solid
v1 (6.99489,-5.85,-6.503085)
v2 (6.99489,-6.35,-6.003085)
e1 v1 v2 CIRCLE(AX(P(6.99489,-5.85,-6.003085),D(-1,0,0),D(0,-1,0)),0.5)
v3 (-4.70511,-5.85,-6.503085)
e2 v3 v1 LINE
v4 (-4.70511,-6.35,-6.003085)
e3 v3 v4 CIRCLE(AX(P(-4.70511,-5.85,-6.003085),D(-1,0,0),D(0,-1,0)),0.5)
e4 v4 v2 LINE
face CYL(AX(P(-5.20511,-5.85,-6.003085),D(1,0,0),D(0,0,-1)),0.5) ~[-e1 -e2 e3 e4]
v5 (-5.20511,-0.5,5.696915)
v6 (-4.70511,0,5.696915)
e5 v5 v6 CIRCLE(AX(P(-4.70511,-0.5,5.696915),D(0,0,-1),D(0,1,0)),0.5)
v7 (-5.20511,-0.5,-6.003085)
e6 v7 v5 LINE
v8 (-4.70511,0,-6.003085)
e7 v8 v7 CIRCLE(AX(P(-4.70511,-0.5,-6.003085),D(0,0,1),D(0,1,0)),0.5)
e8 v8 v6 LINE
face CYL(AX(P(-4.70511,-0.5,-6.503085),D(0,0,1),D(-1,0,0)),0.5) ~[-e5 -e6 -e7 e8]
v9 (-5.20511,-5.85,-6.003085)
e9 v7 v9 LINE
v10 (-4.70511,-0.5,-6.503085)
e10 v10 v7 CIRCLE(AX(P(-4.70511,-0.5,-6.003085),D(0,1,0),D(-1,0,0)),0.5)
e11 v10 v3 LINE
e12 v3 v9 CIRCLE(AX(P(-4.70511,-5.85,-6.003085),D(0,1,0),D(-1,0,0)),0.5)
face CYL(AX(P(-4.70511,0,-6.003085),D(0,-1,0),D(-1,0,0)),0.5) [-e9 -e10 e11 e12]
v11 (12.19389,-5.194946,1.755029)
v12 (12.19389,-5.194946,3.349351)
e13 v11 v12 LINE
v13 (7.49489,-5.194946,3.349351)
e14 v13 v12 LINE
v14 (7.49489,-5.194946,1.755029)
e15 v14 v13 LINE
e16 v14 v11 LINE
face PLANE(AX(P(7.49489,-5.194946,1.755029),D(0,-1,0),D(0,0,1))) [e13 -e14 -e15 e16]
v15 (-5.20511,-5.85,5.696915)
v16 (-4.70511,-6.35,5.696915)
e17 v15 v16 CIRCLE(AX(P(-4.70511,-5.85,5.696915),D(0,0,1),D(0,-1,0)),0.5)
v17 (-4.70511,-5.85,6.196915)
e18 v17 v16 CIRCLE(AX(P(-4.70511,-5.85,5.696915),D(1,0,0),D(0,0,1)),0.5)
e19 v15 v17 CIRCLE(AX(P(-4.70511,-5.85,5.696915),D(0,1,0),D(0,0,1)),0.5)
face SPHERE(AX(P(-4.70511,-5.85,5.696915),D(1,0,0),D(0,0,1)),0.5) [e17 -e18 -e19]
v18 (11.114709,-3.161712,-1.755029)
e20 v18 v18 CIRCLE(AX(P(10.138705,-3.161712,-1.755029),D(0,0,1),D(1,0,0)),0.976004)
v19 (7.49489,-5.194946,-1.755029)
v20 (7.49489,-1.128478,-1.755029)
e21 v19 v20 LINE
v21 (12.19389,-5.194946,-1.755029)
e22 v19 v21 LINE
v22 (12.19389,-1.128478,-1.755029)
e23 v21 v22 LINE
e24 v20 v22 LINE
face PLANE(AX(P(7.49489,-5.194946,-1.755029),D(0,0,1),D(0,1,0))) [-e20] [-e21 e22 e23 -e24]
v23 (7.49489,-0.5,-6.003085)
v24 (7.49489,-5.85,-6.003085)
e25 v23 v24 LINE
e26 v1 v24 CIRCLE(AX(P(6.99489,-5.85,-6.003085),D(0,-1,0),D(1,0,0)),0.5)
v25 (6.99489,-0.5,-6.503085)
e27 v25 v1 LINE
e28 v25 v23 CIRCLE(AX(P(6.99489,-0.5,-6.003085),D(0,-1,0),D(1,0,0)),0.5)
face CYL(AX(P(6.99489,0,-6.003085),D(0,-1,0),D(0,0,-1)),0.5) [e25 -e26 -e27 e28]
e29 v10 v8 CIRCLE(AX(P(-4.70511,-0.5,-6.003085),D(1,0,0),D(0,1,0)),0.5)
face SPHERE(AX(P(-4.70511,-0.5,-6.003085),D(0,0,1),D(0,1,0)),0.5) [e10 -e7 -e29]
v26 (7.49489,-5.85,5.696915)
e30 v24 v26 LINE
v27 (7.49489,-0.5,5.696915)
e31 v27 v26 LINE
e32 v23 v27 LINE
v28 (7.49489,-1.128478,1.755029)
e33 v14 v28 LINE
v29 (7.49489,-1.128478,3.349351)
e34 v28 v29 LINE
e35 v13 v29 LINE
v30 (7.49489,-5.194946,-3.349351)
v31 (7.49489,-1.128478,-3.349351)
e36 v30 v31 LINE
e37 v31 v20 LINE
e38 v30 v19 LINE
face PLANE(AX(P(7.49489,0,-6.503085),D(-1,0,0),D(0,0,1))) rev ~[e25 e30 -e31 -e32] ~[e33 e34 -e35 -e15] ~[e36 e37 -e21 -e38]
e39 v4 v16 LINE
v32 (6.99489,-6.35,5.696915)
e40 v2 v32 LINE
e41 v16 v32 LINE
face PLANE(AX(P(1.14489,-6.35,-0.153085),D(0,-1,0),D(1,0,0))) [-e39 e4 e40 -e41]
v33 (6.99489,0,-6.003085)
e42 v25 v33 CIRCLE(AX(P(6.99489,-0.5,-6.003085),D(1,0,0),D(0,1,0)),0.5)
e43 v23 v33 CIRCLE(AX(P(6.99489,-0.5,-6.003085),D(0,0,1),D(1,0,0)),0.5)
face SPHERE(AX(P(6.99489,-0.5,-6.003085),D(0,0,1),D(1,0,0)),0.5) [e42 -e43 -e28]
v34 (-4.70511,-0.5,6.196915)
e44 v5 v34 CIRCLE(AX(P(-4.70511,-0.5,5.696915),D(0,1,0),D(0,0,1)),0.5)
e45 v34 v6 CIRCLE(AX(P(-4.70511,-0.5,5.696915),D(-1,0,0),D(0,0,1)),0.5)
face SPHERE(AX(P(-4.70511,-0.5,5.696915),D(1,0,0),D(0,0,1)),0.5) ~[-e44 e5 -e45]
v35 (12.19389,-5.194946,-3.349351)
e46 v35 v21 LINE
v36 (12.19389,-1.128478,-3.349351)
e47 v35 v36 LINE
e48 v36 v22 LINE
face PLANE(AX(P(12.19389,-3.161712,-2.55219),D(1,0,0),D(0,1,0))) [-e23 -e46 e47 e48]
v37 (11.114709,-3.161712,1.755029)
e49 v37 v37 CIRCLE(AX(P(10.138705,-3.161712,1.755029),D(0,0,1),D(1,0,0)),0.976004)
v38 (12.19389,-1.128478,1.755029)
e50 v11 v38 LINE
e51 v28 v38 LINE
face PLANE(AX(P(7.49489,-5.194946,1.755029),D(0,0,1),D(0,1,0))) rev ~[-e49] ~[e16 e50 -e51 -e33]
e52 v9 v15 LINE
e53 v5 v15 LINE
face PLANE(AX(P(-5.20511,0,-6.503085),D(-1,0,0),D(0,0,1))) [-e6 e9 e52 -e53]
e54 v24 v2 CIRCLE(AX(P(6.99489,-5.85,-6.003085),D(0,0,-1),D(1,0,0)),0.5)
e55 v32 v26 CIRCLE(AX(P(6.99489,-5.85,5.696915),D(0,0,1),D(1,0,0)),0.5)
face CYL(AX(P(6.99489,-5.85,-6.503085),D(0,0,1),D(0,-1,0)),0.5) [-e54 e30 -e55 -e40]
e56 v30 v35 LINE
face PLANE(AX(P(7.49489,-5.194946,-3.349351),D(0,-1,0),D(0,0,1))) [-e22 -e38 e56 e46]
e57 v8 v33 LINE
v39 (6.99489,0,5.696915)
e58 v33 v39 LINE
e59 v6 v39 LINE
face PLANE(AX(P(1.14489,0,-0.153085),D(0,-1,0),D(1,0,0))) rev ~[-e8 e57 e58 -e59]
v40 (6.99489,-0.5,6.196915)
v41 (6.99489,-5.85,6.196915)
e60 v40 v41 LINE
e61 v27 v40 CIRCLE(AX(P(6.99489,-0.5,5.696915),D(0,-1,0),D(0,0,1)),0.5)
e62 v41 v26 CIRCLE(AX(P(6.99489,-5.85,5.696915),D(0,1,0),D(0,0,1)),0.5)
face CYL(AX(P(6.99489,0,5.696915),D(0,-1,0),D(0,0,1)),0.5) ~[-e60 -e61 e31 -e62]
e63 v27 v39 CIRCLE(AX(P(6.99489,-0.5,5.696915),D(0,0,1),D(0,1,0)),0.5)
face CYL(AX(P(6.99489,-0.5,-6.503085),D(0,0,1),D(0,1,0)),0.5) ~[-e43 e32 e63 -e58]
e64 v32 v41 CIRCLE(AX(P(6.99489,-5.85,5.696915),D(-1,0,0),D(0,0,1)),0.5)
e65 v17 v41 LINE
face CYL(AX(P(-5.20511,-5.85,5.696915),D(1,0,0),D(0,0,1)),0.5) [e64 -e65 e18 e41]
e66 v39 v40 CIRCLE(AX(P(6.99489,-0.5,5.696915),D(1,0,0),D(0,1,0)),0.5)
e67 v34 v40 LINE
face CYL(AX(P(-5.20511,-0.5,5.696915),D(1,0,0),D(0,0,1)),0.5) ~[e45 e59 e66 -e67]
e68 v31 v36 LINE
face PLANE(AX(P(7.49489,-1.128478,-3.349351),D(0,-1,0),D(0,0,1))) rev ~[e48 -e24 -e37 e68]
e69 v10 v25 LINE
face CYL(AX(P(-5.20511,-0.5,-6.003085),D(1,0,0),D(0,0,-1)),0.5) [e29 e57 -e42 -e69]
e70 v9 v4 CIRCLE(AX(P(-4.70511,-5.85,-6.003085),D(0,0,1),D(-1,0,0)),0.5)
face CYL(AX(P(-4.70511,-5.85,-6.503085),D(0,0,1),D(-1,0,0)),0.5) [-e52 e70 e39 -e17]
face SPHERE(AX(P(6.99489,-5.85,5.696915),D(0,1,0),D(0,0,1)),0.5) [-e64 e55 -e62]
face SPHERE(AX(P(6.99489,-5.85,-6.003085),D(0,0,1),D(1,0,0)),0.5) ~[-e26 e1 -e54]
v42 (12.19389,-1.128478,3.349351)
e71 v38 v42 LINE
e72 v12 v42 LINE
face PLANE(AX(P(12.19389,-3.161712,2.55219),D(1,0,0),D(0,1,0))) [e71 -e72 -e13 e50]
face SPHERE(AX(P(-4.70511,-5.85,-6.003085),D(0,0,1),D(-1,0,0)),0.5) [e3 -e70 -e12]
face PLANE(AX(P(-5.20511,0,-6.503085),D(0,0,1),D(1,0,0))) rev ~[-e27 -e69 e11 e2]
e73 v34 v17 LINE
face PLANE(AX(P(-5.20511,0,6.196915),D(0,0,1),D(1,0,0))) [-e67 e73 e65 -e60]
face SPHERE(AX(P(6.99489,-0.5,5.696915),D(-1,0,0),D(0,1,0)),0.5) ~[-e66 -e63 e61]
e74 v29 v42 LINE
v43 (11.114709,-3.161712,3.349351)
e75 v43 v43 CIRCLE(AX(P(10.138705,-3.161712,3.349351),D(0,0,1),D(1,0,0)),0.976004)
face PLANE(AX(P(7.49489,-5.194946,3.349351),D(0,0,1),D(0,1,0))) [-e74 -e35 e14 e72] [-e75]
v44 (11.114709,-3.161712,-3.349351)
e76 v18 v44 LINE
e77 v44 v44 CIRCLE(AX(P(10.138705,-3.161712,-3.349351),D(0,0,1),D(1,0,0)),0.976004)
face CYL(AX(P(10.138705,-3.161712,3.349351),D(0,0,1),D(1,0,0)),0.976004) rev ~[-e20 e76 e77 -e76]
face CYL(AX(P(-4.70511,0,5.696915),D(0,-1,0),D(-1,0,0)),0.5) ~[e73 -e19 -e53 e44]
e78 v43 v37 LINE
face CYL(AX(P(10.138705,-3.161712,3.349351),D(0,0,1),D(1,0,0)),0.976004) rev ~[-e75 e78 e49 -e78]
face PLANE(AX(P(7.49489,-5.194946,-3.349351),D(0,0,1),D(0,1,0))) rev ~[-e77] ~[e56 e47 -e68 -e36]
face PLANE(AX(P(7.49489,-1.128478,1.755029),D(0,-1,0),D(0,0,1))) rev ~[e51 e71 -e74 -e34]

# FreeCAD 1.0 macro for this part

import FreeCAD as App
import Part
import Sketcher

V = App.Vector
Q = App.Units.Quantity


def edges_at(feature, points):
    """Names of the edges that pass closest to the given points."""
    edges = feature.Shape.Edges
    near = lambda p: min(range(len(edges)), key=lambda i: edges[i].distToShape(Part.Vertex(*p))[0])
    return sorted({f"Edge{near(p) + 1}" for p in points})

doc = App.newDocument("Part")
params = doc.addObject("Spreadsheet::Sheet", "Params")
for row, (alias, value) in enumerate([
    ("sketch1_width", "0.5 in"),
    ("pad1_length", "0.25 in"),
    ("pad2_length", "0.185 in"),
    ("pocket1_length", "1 in"),
    ("fillet_radius", "0.5 mm"),
], start=1):
    params.set(f"A{row}", alias)
    params.set(f"B{row}", "=" + value)
    params.setAlias(f"B{row}", alias)

body = doc.addObject("PartDesign::Body", "Body")

sketch1 = body.newObject("Sketcher::SketchObject", "Sketch")
sketch1.AttachmentSupport = (doc.getObject("XZ_Plane"), [""])
sketch1.MapMode = "FlatFace"
sketch1.addGeometry([
    Part.LineSegment(V(-5.20511, 6.196915, 0), V(-5.20511, -6.503085, 0)),
    Part.LineSegment(V(-5.20511, -6.503085, 0), V(7.49489, -6.503085, 0)),
    Part.LineSegment(V(7.49489, -6.503085, 0), V(7.49489, 6.196915, 0)),
    Part.LineSegment(V(7.49489, 6.196915, 0), V(-5.20511, 6.196915, 0)),
], False)
sketch1.addConstraint([
    Sketcher.Constraint("Coincident", 0, 2, 1, 1),
    Sketcher.Constraint("Coincident", 1, 2, 2, 1),
    Sketcher.Constraint("Coincident", 2, 2, 3, 1),
    Sketcher.Constraint("Coincident", 3, 2, 0, 1),
    Sketcher.Constraint("Vertical", 0),
    Sketcher.Constraint("Horizontal", 1),
    Sketcher.Constraint("Vertical", 2),
    Sketcher.Constraint("Horizontal", 3),
    Sketcher.Constraint("Equal", 3, 0),
    Sketcher.Constraint("DistanceX", 1, 1, 1, 2, Q("0.5 in")),
    Sketcher.Constraint("DistanceX", 0, 2, -1, 1, 5.20511),
    Sketcher.Constraint("DistanceY", 0, 2, -1, 1, 6.503085),
])
sketch1.setExpression("Constraints[9]", "Params.sketch1_width")
pad1 = body.newObject("PartDesign::Pad", "Pad")
pad1.Profile = sketch1
pad1.setExpression("Length", "Params.pad1_length")

sketch2 = body.newObject("Sketcher::SketchObject", "Sketch001")
sketch2.AttachmentSupport = (doc.getObject("YZ_Plane"), [""])
sketch2.MapMode = "FlatFace"
sketch2.AttachmentOffset = App.Placement(V(0, 0, 7.49489), App.Rotation())
sketch2.addGeometry([
    Part.LineSegment(V(-5.194946, 3.349351, 0), V(-5.194946, 1.755029, 0)),
    Part.LineSegment(V(-5.194946, 1.755029, 0), V(-1.128478, 1.755029, 0)),
    Part.LineSegment(V(-1.128478, 1.755029, 0), V(-1.128478, 3.349351, 0)),
    Part.LineSegment(V(-1.128478, 3.349351, 0), V(-5.194946, 3.349351, 0)),
    Part.LineSegment(V(-5.194946, -1.755029, 0), V(-5.194946, -3.349351, 0)),
    Part.LineSegment(V(-5.194946, -3.349351, 0), V(-1.128478, -3.349351, 0)),
    Part.LineSegment(V(-1.128478, -3.349351, 0), V(-1.128478, -1.755029, 0)),
    Part.LineSegment(V(-1.128478, -1.755029, 0), V(-5.194946, -1.755029, 0)),
], False)
sketch2.addConstraint([
    Sketcher.Constraint("Coincident", 0, 2, 1, 1),
    Sketcher.Constraint("Coincident", 1, 2, 2, 1),
    Sketcher.Constraint("Coincident", 2, 2, 3, 1),
    Sketcher.Constraint("Coincident", 3, 2, 0, 1),
    Sketcher.Constraint("Coincident", 4, 2, 5, 1),
    Sketcher.Constraint("Coincident", 5, 2, 6, 1),
    Sketcher.Constraint("Coincident", 6, 2, 7, 1),
    Sketcher.Constraint("Coincident", 7, 2, 4, 1),
    Sketcher.Constraint("Vertical", 0),
    Sketcher.Constraint("Horizontal", 1),
    Sketcher.Constraint("Vertical", 2),
    Sketcher.Constraint("Horizontal", 3),
    Sketcher.Constraint("Vertical", 4),
    Sketcher.Constraint("Horizontal", 5),
    Sketcher.Constraint("Vertical", 6),
    Sketcher.Constraint("Horizontal", 7),
    Sketcher.Constraint("Symmetric", 3, 2, 4, 2, -1),
    Sketcher.Constraint("Symmetric", 1, 2, 6, 2, -1),
    Sketcher.Constraint("DistanceX", 1, 1, 1, 2, 4.066467),
    Sketcher.Constraint("DistanceY", 0, 2, 0, 1, 1.594322),
    Sketcher.Constraint("DistanceY", -1, 1, 0, 2, 1.755029),
    Sketcher.Constraint("DistanceX", 1, 2, -1, 1, 1.128478),
])
pad2 = body.newObject("PartDesign::Pad", "Pad001")
pad2.Profile = sketch2
pad2.setExpression("Length", "Params.pad2_length")

sketch3 = body.newObject("Sketcher::SketchObject", "Sketch002")
sketch3.AttachmentSupport = (doc.getObject("XY_Plane"), [""])
sketch3.MapMode = "FlatFace"
sketch3.AttachmentOffset = App.Placement(V(0, 0, 3.349351), App.Rotation())
sketch3.addGeometry(Part.Circle(V(10.138705, -3.161712, 0), V(0, 0, 1), 0.976004), False)
sketch3.addConstraint([
    Sketcher.Constraint("Diameter", 0, 1.952008),
    Sketcher.Constraint("DistanceX", -1, 1, 0, 3, 10.138705),
    Sketcher.Constraint("DistanceY", 0, 3, -1, 1, 3.161712),
])
pocket1 = body.newObject("PartDesign::Pocket", "Pocket")
pocket1.Profile = sketch3
pocket1.setExpression("Length", "Params.pocket1_length")
doc.recompute()

fillet = body.newObject("PartDesign::Fillet", "Fillet")
fillet.Base = (pocket1, edges_at(pocket1, [
    (1.145, 0, 6.197),
    (7.495, 0, -0.153),
    (7.495, -3.175, 6.197),
    (1.145, -6.35, 6.197),
    (-5.205, -3.175, 6.197),
    (7.495, -6.35, -0.153),
    (7.495, -3.175, -6.503),
    (-5.205, 0, -0.153),
    (1.145, 0, -6.503),
    (-5.205, -6.35, -0.153),
    (-5.205, -3.175, -6.503),
    (1.145, -6.35, -6.503),
]))
fillet.setExpression("Radius", "Params.fillet_radius")

doc.recompute()
